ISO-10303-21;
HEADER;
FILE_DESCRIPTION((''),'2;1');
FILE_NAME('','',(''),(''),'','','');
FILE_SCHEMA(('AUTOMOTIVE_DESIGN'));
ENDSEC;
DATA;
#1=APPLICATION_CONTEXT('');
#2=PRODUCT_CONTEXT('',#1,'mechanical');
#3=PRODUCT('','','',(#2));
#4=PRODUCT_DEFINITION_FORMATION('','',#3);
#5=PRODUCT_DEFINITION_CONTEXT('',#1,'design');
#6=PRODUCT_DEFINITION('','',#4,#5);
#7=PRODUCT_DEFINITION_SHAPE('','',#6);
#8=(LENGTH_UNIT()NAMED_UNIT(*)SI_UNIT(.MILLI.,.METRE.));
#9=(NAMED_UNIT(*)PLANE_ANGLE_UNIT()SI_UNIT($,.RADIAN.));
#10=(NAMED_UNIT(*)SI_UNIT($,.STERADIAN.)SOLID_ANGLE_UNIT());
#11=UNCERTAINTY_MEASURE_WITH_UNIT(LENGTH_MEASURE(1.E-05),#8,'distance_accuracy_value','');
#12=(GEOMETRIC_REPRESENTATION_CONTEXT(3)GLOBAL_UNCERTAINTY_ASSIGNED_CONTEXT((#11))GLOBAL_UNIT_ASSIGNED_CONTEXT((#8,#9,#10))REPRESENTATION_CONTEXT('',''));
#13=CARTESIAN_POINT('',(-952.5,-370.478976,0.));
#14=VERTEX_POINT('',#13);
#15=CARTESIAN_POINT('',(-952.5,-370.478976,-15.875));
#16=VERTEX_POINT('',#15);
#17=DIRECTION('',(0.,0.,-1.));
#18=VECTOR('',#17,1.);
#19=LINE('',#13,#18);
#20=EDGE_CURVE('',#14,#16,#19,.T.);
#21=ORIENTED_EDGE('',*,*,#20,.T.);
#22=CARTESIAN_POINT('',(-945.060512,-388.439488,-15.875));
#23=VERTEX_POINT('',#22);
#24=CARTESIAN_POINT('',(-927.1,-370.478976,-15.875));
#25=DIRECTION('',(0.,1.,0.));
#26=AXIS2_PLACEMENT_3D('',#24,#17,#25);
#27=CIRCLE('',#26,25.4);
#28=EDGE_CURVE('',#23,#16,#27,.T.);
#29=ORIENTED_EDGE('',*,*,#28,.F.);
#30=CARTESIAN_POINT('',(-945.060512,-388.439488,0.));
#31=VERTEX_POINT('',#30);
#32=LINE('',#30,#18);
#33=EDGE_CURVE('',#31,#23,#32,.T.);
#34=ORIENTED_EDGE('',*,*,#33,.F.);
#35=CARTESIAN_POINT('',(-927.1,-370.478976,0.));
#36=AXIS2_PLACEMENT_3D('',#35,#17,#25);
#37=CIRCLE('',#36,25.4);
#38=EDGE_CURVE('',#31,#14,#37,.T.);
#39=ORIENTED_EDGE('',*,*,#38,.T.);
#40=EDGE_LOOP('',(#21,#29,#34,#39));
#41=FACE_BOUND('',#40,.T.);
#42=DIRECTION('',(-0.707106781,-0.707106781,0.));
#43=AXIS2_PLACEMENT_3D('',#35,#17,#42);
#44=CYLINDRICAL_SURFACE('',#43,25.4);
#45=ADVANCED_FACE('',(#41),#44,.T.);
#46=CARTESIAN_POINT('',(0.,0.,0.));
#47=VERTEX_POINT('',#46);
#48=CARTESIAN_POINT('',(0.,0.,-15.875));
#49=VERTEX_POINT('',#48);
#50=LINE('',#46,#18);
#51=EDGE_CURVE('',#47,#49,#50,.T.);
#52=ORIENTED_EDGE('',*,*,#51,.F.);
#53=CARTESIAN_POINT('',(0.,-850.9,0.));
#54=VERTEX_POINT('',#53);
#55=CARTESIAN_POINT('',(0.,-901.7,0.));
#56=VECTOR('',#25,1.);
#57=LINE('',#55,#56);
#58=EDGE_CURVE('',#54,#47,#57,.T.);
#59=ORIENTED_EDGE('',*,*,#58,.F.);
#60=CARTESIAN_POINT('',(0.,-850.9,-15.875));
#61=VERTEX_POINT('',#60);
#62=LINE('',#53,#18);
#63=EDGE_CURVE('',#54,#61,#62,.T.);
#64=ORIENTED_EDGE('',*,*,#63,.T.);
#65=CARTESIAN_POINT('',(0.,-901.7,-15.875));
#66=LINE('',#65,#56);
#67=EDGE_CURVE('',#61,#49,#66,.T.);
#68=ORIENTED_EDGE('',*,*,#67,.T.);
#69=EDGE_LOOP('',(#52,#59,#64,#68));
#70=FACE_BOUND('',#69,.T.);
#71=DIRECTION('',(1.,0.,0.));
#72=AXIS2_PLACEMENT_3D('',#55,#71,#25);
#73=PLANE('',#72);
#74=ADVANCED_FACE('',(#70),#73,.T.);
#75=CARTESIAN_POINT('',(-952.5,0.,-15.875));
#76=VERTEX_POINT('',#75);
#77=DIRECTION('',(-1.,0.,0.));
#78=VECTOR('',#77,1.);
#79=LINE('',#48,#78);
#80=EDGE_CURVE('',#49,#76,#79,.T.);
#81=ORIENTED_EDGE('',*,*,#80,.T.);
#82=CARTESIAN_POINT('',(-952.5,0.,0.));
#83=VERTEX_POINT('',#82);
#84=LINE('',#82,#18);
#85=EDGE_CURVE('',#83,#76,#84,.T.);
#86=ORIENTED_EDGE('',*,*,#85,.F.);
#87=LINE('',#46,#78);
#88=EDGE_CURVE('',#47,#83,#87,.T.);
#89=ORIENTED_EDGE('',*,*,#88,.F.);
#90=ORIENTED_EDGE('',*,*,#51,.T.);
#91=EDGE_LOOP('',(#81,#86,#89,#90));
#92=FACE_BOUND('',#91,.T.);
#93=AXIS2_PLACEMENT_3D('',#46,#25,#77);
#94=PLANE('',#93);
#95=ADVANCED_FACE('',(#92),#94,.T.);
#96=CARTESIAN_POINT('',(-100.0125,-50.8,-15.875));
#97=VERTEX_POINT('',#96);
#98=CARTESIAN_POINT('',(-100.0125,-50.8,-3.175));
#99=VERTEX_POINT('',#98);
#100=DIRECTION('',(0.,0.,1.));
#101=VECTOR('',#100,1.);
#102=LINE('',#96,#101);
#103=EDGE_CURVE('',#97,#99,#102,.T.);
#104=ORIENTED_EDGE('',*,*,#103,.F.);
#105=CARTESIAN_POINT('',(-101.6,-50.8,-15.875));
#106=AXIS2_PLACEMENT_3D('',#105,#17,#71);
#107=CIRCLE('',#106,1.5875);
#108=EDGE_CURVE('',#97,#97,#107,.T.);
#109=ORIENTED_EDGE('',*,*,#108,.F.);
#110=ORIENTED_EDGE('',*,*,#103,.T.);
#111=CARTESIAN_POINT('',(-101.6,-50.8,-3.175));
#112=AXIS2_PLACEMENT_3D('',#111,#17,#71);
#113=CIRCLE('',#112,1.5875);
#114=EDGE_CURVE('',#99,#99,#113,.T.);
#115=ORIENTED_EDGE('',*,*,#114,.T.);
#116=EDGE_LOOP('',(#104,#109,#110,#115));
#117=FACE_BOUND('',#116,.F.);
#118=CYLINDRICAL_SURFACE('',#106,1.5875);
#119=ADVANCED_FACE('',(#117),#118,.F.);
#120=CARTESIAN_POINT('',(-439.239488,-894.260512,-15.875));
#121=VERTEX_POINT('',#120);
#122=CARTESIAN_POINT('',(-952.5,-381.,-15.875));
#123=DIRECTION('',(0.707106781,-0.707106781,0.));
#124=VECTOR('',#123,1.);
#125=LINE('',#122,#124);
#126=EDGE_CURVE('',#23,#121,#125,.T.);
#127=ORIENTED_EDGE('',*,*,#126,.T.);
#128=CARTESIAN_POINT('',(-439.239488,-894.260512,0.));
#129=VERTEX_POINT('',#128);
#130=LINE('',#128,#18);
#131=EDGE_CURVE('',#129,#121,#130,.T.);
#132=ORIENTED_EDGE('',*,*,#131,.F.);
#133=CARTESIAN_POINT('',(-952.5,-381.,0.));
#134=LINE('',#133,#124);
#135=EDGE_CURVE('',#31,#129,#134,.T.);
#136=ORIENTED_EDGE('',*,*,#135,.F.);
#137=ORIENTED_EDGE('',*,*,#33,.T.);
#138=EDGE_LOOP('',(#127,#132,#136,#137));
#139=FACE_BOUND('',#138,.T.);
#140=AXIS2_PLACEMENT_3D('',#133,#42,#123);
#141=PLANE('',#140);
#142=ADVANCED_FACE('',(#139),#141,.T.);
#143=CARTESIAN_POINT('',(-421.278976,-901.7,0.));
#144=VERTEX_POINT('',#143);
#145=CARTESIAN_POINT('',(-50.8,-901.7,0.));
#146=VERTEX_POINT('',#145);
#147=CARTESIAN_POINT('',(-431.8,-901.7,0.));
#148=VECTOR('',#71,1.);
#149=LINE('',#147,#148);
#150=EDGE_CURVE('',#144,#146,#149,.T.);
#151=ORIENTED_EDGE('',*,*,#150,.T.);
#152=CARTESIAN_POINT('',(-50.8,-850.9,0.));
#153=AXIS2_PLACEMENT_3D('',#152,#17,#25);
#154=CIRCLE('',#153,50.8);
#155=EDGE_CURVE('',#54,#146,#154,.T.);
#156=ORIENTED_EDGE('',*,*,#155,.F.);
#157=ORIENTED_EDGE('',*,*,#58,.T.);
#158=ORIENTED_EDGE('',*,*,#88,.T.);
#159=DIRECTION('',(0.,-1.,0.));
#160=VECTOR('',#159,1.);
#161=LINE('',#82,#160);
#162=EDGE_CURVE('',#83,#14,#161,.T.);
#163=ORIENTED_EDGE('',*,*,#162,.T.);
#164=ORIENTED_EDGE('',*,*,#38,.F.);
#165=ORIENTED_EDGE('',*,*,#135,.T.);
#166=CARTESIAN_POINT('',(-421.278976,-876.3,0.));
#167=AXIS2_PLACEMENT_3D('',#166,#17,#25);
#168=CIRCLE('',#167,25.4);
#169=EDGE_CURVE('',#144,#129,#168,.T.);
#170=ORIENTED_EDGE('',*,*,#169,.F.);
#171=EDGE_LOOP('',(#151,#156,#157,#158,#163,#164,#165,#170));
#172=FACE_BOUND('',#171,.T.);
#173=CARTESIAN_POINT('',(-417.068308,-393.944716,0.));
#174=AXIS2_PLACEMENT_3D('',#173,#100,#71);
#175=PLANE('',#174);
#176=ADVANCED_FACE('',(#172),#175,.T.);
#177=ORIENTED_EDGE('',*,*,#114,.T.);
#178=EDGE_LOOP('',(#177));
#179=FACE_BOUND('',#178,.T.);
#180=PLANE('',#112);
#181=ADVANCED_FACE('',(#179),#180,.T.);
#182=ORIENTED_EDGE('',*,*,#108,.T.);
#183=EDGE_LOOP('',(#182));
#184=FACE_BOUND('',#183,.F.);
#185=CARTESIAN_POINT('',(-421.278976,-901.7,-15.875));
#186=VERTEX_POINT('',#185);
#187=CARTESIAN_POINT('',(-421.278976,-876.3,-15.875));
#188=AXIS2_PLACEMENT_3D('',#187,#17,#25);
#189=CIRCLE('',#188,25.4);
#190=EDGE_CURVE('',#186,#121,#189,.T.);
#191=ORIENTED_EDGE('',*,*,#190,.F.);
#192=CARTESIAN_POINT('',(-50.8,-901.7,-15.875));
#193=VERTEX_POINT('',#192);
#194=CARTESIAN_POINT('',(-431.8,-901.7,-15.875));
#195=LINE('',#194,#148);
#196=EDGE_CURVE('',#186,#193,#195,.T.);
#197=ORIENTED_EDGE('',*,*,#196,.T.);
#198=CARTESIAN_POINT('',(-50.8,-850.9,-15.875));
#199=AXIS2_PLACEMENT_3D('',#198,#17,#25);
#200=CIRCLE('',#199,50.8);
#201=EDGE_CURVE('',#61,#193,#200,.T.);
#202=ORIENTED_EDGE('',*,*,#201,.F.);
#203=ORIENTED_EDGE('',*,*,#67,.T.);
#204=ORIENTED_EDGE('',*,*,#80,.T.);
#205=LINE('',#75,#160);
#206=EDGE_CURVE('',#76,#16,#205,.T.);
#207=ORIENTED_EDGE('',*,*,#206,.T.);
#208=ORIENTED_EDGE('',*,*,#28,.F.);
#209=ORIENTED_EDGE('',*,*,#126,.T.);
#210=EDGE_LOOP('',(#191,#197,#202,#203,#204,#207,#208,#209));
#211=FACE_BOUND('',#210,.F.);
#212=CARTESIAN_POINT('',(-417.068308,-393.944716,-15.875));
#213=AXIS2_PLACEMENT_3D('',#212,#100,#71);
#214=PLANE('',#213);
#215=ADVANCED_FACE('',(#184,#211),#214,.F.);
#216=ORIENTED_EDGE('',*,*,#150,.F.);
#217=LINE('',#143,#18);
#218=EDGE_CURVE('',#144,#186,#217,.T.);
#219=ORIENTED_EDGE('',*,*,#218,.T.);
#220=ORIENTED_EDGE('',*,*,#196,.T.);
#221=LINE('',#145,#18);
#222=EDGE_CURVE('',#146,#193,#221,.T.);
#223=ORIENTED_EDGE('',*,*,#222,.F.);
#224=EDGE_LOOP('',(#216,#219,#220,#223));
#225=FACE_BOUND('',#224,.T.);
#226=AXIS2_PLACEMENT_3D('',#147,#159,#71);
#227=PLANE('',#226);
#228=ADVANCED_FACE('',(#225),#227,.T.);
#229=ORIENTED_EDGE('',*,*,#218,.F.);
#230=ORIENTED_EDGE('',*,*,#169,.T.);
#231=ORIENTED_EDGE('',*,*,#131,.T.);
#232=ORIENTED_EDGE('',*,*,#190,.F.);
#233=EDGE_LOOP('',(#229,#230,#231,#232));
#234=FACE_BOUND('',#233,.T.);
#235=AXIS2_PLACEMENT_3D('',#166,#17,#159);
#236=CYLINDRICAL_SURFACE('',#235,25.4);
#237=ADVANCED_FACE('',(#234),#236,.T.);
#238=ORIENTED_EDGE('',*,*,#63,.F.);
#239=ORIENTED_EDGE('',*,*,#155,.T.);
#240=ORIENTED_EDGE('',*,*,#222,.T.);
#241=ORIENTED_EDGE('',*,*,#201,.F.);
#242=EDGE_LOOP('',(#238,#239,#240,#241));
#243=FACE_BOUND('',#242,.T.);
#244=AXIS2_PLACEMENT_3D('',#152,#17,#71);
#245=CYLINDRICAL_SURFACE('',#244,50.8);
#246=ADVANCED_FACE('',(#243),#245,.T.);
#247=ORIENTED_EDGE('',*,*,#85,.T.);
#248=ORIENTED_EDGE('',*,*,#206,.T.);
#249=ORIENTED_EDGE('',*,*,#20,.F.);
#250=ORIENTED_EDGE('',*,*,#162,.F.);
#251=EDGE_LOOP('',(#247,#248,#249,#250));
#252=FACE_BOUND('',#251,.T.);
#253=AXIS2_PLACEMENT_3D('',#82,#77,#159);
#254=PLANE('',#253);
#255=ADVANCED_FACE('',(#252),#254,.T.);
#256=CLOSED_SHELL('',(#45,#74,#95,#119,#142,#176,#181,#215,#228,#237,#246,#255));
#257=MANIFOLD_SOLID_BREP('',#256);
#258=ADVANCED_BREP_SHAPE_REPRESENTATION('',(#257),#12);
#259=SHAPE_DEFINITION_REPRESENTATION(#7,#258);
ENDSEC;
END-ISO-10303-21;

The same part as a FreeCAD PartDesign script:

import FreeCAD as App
import Part
import Sketcher
from FreeCAD import Vector
Q = App.Units.Quantity


def edges_at(feature, points):
    """Names of the edges that pass closest to the given points."""
    edges = feature.Shape.Edges
    near = lambda p: min(range(len(edges)), key=lambda i: edges[i].distToShape(Part.Vertex(*p))[0])
    return sorted({f"Edge{near(p) + 1}" for p in points})

doc = App.newDocument("Part")
params = doc.addObject("Spreadsheet::Sheet", "Params")
for row, (alias, value) in enumerate([
    ("sketch1_width", "17 in"),
    ("sketch1_height", "15 in"),
    ("sketch1_width2", "37.5 in"),
    ("sketch1_height2", "35.5 in"),
    ("pad1_length", "0.625 in"),
    ("fillet_radius", "2 in"),
    ("fillet2_radius", "1 in"),
    ("fillet3_radius", "1 in"),
    ("sketch2_diameter", "0.125 in"),
    ("pocket1_length", "0.5 in"),
], start=1):
    params.set(f"A{row}", alias)
    params.set(f"B{row}", "=" + value)
    params.setAlias(f"B{row}", alias)

body = doc.addObject("PartDesign::Body", "Body")

# Sketch on XY plane
sketch1 = doc.addObject("Sketcher::SketchObject", "Sketch")
body.addObject(sketch1)
sketch1.AttachmentSupport = (doc.XY_Plane, [""])
sketch1.MapMode = "FlatFace"
sketch1.addGeometry(Part.LineSegment(Vector(0, -902, 0), Vector(0, 0, 0)), False)
sketch1.addGeometry(Part.LineSegment(Vector(0, 0, 0), Vector(-952, 0, 0)), False)
sketch1.addGeometry(Part.LineSegment(Vector(-952, 0, 0), Vector(-952, -381, 0)), False)
sketch1.addGeometry(Part.LineSegment(Vector(-952, -381, 0), Vector(-432, -902, 0)), False)
sketch1.addGeometry(Part.LineSegment(Vector(-432, -902, 0), Vector(0, -902, 0)), False)
sketch1.addConstraint(Sketcher.Constraint("Coincident", 0, 2, 1, 1))
sketch1.addConstraint(Sketcher.Constraint("Coincident", 1, 2, 2, 1))
sketch1.addConstraint(Sketcher.Constraint("Coincident", 2, 2, 3, 1))
sketch1.addConstraint(Sketcher.Constraint("Coincident", 3, 2, 4, 1))
sketch1.addConstraint(Sketcher.Constraint("Coincident", 4, 2, 0, 1))
sketch1.addConstraint(Sketcher.Constraint("Vertical", 0))
sketch1.addConstraint(Sketcher.Constraint("Horizontal", 1))
sketch1.addConstraint(Sketcher.Constraint("Vertical", 2))
sketch1.addConstraint(Sketcher.Constraint("Horizontal", 4))
sketch1.addConstraint(Sketcher.Constraint("Coincident", 0, 2, -1, 1))
sketch1.addConstraint(Sketcher.Constraint("DistanceX", 4, 1, 4, 2, Q("17 in")))
sketch1.addConstraint(Sketcher.Constraint("DistanceY", 2, 2, 2, 1, Q("15 in")))
sketch1.addConstraint(Sketcher.Constraint("DistanceX", 1, 2, 1, 1, Q("37.5 in")))
sketch1.addConstraint(Sketcher.Constraint("DistanceY", 0, 1, 0, 2, Q("35.5 in")))
sketch1.setExpression("Constraints[10]", "Params.sketch1_width")
sketch1.setExpression("Constraints[11]", "Params.sketch1_height")
sketch1.setExpression("Constraints[12]", "Params.sketch1_width2")
sketch1.setExpression("Constraints[13]", "Params.sketch1_height2")
pad1 = doc.addObject("PartDesign::Pad", "Pad")
body.addObject(pad1)
pad1.Profile = sketch1
pad1.setExpression("Length", "Params.pad1_length")
pad1.Reversed = True
doc.recompute()

fillet = doc.addObject("PartDesign::Fillet", "Fillet")
body.addObject(fillet)
fillet.Base = (pad1, edges_at(pad1, [(0, -901.7, -7.938)]))
fillet.setExpression("Radius", "Params.fillet_radius")
doc.recompute()

fillet2 = doc.addObject("PartDesign::Fillet", "Fillet001")
body.addObject(fillet2)
fillet2.Base = (fillet, edges_at(fillet, [(-431.8, -901.7, -7.938)]))
fillet2.setExpression("Radius", "Params.fillet2_radius")
doc.recompute()

fillet3 = doc.addObject("PartDesign::Fillet", "Fillet002")
body.addObject(fillet3)
fillet3.Base = (fillet2, edges_at(fillet2, [(-952.5, -381, -7.938)]))
fillet3.setExpression("Radius", "Params.fillet3_radius")

# Sketch on XY plane
sketch2 = doc.addObject("Sketcher::SketchObject", "Sketch001")
body.addObject(sketch2)
sketch2.AttachmentSupport = (doc.XY_Plane, [""])
sketch2.MapMode = "FlatFace"
sketch2.AttachmentOffset = App.Placement(Vector(0, 0, -0.625 * 25.4), App.Rotation())
sketch2.addGeometry(Part.Circle(Vector(-101.6, -50.8, 0), Vector(0, 0, 1), 1.6), False)
sketch2.addConstraint(Sketcher.Constraint("Diameter", 0, Q("0.125 in")))
sketch2.addConstraint(Sketcher.Constraint("DistanceX", 0, 3, -1, 1, Q("4 in")))
sketch2.addConstraint(Sketcher.Constraint("DistanceY", 0, 3, -1, 1, Q("2 in")))
sketch2.setExpression("Constraints[0]", "Params.sketch2_diameter")
pocket1 = doc.addObject("PartDesign::Pocket", "Pocket")
body.addObject(pocket1)
pocket1.Profile = sketch2
pocket1.setExpression("Length", "Params.pocket1_length")
pocket1.Reversed = True

doc.recompute()
